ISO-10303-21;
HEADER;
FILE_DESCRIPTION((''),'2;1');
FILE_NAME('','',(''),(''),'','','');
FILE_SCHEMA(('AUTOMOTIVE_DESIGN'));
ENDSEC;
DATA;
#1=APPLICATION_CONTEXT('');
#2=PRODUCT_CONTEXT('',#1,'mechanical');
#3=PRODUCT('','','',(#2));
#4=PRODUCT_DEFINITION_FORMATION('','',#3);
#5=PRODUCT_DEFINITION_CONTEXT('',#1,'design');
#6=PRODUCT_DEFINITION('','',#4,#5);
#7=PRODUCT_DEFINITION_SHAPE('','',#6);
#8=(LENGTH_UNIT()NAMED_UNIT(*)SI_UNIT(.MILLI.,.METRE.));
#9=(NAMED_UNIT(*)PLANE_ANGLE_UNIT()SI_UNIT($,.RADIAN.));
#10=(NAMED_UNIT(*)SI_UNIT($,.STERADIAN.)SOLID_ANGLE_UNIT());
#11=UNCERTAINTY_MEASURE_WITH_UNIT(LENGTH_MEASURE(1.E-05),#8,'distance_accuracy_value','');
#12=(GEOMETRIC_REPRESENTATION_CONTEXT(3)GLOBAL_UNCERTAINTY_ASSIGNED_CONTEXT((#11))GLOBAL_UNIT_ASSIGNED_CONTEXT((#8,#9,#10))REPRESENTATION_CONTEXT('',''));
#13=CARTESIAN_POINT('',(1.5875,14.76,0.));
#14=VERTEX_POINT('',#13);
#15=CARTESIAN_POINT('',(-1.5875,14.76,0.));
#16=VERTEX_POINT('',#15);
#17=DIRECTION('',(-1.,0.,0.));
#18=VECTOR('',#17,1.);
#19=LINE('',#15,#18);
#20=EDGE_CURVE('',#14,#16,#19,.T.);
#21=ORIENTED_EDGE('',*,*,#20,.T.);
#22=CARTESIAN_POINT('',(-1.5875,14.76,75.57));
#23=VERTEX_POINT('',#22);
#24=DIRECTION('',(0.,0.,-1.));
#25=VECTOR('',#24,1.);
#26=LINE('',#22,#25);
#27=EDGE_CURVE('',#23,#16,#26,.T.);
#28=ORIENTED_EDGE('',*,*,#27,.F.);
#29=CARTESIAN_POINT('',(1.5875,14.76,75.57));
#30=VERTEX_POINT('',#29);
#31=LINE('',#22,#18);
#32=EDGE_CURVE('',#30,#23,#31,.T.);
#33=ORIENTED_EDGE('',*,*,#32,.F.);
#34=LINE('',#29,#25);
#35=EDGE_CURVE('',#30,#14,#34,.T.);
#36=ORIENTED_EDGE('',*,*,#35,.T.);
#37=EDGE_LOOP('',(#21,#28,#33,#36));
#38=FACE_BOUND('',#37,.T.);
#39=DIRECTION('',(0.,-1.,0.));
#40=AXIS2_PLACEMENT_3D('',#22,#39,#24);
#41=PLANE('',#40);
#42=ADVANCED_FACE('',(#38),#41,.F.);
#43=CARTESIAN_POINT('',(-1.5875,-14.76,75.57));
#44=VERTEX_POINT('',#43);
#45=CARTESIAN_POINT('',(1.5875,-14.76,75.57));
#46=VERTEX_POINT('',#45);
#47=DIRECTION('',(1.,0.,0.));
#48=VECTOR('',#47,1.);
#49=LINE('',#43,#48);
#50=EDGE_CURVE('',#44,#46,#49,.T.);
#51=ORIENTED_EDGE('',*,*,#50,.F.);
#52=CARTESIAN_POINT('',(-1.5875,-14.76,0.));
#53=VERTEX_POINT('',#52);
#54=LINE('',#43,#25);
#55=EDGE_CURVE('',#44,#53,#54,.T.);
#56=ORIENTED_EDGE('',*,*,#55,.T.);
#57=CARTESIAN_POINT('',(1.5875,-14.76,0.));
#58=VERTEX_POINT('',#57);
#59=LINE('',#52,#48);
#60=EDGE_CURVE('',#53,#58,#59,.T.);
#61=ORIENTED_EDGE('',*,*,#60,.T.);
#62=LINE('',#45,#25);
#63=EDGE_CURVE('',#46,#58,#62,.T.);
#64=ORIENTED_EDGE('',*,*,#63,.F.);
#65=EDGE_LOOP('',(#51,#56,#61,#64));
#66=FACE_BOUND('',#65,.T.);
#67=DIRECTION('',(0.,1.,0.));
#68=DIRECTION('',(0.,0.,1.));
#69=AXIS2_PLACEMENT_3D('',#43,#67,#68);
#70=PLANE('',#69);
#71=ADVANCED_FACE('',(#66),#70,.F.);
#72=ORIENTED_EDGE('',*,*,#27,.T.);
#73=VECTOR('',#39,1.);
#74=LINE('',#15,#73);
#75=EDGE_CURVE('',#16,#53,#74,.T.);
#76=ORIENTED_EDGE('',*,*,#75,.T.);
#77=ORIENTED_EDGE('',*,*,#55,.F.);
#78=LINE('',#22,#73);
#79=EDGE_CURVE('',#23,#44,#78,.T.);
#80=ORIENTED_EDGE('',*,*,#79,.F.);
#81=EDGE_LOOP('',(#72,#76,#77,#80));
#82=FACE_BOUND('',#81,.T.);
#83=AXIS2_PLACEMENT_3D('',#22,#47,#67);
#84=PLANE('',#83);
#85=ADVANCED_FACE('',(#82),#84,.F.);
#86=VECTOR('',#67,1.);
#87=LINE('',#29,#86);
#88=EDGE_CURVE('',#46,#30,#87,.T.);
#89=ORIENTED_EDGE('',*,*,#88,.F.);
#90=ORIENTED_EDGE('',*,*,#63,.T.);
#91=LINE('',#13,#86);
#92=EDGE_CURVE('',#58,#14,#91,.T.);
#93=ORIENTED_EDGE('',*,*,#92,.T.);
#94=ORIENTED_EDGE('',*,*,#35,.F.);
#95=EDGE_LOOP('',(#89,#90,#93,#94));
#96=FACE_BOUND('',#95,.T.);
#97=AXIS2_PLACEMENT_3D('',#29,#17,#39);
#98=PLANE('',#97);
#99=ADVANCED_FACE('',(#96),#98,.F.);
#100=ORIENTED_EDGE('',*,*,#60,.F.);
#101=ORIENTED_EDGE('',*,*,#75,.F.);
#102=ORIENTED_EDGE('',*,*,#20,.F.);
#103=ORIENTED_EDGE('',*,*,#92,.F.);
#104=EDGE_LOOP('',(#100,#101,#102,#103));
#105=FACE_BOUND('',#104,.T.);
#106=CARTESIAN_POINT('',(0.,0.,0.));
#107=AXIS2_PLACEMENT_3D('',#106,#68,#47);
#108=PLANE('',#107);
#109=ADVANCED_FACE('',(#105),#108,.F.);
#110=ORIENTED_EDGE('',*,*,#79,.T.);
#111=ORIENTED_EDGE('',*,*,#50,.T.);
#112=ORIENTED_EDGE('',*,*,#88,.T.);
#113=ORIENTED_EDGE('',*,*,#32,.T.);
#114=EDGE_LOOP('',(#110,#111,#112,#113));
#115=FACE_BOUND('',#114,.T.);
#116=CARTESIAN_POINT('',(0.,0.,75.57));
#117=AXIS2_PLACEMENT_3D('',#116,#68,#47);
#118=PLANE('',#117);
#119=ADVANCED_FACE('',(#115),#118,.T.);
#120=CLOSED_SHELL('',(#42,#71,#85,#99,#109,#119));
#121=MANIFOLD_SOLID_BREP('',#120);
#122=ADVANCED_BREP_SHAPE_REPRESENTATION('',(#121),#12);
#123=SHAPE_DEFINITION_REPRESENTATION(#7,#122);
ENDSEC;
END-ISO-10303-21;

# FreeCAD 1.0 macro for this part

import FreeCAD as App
import Part
import Sketcher
Q = App.Units.Quantity


def add_polygon(sketch, points):
    """Adds a closed chain of lines whose ends are joined by coincident constraints."""
    first, n = sketch.GeometryCount, len(points)
    for a, b in zip(points, points[1:] + points[:1]):
        sketch.addGeometry(Part.LineSegment(App.Vector(*a, 0), App.Vector(*b, 0)), False)
    for i in range(n):
        sketch.addConstraint(Sketcher.Constraint("Coincident", first + i, 2, first + (i + 1) % n, 1))

doc = App.newDocument("Part")
body = doc.addObject("PartDesign::Body", "Body")

# Sketch on XY plane
sketch1 = doc.addObject("Sketcher::SketchObject", "Sketch")
body.addObject(sketch1)
sketch1.AttachmentSupport = (doc.XY_Plane, [""])
sketch1.MapMode = "FlatFace"
add_polygon(sketch1, [(-1.6, 14.8), (-1.6, -14.8), (1.6, -14.8), (1.6, 14.8)])  # lines 0-3
sketch1.addConstraint(Sketcher.Constraint("Vertical", 0))
sketch1.addConstraint(Sketcher.Constraint("Horizontal", 1))
sketch1.addConstraint(Sketcher.Constraint("Vertical", 2))
sketch1.addConstraint(Sketcher.Constraint("Horizontal", 3))
sketch1.addConstraint(Sketcher.Constraint("Symmetric", 0, 2, 2, 2, -1, 1))
sketch1.addConstraint(Sketcher.Constraint("DistanceX", 1, 1, 1, 2, Q("0.125 in")))
sketch1.addConstraint(Sketcher.Constraint("DistanceY", 0, 2, 0, 1, 29.52))
pad1 = doc.addObject("PartDesign::Pad", "Pad")
body.addObject(pad1)
pad1.Profile = sketch1
pad1.Length = 75.57

doc.recompute()
